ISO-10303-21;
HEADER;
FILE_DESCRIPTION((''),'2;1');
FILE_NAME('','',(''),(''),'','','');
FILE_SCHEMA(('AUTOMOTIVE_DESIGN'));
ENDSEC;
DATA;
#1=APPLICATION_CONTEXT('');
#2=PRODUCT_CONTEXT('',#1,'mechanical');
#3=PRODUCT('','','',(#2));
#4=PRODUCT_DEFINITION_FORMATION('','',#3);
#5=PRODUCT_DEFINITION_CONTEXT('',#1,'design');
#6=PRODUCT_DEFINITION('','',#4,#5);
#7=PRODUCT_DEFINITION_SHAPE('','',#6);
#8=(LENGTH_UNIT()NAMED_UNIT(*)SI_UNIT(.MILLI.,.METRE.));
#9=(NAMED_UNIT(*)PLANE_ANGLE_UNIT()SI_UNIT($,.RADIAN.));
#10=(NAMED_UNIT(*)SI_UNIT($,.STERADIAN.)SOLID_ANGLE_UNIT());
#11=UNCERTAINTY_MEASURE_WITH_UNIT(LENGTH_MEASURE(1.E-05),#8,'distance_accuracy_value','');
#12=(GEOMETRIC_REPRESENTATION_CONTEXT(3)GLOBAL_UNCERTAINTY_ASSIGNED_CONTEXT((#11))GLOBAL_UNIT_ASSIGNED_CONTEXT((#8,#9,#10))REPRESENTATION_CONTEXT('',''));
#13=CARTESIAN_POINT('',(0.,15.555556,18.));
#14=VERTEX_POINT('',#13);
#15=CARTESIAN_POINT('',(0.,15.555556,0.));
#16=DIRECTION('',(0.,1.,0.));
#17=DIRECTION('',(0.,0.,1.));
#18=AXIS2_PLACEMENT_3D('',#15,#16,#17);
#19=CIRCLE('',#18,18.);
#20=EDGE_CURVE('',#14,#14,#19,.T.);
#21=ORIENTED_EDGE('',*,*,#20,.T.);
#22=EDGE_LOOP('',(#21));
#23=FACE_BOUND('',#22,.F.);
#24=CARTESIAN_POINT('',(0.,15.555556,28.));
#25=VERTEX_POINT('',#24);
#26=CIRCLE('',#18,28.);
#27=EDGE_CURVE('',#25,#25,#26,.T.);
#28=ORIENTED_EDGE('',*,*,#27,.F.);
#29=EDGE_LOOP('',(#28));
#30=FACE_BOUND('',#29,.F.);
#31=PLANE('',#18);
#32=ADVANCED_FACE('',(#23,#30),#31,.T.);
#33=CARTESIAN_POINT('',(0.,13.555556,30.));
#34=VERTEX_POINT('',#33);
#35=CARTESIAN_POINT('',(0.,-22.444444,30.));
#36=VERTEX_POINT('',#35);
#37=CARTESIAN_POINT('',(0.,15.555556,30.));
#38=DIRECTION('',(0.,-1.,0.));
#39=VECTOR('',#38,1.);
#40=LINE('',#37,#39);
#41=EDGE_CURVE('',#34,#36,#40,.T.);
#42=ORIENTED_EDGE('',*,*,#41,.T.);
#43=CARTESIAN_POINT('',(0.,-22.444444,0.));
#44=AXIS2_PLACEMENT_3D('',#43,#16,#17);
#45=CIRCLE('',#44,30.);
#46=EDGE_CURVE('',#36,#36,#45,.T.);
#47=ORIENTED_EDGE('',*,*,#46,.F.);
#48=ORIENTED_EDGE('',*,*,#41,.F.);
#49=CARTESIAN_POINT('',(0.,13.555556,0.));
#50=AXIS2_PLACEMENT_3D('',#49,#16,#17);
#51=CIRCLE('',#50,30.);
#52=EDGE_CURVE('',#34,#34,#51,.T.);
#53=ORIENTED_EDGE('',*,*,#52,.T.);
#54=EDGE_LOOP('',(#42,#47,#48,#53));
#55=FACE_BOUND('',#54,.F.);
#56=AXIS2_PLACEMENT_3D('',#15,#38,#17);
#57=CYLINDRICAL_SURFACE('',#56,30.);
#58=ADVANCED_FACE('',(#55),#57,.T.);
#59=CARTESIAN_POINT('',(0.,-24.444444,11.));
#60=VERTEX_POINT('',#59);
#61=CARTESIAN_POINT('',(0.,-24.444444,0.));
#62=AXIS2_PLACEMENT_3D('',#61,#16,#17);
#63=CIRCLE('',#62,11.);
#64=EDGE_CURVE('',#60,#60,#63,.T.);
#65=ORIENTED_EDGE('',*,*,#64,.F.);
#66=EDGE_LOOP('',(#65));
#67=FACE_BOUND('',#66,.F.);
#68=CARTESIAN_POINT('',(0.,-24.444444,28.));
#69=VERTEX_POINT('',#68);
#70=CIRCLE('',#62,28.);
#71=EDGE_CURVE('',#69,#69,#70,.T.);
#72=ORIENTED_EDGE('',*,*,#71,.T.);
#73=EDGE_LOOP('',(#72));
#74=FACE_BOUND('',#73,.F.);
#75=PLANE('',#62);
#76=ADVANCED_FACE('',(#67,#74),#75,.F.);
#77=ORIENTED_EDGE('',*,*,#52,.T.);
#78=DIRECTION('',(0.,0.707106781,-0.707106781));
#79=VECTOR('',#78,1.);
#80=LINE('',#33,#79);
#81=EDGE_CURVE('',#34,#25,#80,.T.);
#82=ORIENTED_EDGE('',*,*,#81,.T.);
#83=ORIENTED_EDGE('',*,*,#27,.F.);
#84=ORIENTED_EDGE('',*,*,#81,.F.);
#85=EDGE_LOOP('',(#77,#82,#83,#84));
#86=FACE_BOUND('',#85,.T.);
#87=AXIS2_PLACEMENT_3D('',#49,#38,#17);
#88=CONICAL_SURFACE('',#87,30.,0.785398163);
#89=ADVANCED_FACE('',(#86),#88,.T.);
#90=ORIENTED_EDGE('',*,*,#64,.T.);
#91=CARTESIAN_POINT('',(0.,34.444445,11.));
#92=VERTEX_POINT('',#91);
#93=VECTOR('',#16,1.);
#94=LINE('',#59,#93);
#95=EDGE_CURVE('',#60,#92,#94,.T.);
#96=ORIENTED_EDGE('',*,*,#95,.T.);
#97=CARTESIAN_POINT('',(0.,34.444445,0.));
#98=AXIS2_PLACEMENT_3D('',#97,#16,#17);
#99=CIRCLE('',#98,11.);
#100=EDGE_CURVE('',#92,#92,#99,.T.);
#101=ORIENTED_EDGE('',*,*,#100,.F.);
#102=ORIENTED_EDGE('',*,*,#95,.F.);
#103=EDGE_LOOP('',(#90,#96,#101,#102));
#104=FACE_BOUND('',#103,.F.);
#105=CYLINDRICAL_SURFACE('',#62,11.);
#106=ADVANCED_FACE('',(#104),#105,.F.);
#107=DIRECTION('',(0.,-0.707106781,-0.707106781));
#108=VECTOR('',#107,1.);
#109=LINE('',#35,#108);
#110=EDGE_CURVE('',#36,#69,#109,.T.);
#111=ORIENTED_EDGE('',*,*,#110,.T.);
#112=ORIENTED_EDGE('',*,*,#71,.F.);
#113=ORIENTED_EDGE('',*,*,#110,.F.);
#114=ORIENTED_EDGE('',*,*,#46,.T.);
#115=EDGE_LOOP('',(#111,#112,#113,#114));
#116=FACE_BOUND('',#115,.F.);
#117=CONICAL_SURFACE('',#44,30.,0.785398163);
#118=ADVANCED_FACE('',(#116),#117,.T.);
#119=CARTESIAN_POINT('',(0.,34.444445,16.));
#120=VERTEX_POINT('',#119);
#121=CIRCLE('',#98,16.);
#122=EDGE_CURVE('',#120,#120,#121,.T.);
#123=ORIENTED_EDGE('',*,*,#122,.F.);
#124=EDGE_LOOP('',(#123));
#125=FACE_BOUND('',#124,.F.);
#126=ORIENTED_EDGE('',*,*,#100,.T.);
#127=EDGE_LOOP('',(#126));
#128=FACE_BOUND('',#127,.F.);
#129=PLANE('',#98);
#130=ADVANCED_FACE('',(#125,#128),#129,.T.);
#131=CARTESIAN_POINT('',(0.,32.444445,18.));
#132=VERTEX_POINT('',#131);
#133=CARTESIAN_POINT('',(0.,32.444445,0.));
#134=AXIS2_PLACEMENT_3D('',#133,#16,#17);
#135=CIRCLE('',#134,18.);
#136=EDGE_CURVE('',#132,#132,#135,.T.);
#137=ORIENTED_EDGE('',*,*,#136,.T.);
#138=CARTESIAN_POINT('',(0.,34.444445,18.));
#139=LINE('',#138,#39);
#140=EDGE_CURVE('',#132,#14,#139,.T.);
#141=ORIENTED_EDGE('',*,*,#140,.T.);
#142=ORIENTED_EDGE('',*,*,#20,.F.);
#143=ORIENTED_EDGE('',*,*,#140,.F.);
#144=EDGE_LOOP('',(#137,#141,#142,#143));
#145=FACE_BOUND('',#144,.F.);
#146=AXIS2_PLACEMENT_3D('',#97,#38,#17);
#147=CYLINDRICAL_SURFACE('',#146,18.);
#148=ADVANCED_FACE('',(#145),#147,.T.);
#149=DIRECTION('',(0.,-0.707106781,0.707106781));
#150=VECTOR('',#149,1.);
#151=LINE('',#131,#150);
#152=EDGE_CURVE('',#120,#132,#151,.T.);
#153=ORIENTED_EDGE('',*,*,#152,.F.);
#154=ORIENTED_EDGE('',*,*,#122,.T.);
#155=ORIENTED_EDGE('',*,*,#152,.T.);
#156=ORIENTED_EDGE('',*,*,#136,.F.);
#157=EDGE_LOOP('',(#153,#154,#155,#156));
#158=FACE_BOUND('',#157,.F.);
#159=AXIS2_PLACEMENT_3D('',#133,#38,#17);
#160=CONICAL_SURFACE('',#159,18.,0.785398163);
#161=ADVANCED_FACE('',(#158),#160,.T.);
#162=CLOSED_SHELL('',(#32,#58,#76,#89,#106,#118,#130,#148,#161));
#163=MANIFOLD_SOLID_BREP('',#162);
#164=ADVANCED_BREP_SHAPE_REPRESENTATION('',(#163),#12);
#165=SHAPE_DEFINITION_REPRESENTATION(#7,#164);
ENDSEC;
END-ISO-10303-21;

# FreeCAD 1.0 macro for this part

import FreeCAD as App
import Part
import Sketcher
Q = App.Units.Quantity


def edges_at(feature, points):
    """Names of the edges that pass closest to the given points."""
    edges = feature.Shape.Edges
    near = lambda p: min(range(len(edges)), key=lambda i: edges[i].distToShape(Part.Vertex(*p))[0])
    return sorted({f"Edge{near(p) + 1}" for p in points})

doc = App.newDocument("Part")
body = doc.addObject("PartDesign::Body", "Body")

# Sketch on YZ plane
sketch1 = body.newObject("Sketcher::SketchObject", "Sketch")
sketch1.AttachmentSupport = (doc.getObject("YZ_Plane"), [""])
sketch1.MapMode = "FlatFace"
sketch1.addGeometry(Part.LineSegment(App.Vector(15.555556, 30, 0), App.Vector(-24.444444, 30, 0)), False)
sketch1.addGeometry(Part.LineSegment(App.Vector(-24.444444, 30, 0), App.Vector(-24.444444, 11, 0)), False)
sketch1.addGeometry(Part.LineSegment(App.Vector(-24.444444, 11, 0), App.Vector(34.444445, 11, 0)), False)
sketch1.addGeometry(Part.LineSegment(App.Vector(34.444445, 11, 0), App.Vector(34.444445, 18, 0)), False)
sketch1.addGeometry(Part.LineSegment(App.Vector(34.444445, 18, 0), App.Vector(15.555556, 18, 0)), False)
sketch1.addGeometry(Part.LineSegment(App.Vector(15.555556, 18, 0), App.Vector(15.555556, 30, 0)), False)
sketch1.addConstraint(Sketcher.Constraint("Coincident", 0, 2, 1, 1))
sketch1.addConstraint(Sketcher.Constraint("Coincident", 1, 2, 2, 1))
sketch1.addConstraint(Sketcher.Constraint("Coincident", 2, 2, 3, 1))
sketch1.addConstraint(Sketcher.Constraint("Coincident", 3, 2, 4, 1))
sketch1.addConstraint(Sketcher.Constraint("Coincident", 4, 2, 5, 1))
sketch1.addConstraint(Sketcher.Constraint("Coincident", 5, 2, 0, 1))
sketch1.addConstraint(Sketcher.Constraint("Horizontal", 0))
sketch1.addConstraint(Sketcher.Constraint("Vertical", 1))
sketch1.addConstraint(Sketcher.Constraint("Horizontal", 2))
sketch1.addConstraint(Sketcher.Constraint("Vertical", 3))
sketch1.addConstraint(Sketcher.Constraint("Horizontal", 4))
sketch1.addConstraint(Sketcher.Constraint("Vertical", 5))
sketch1.addConstraint(Sketcher.Constraint("DistanceX", 0, 2, 0, 1, Q("40 mm")))
sketch1.addConstraint(Sketcher.Constraint("DistanceY", 1, 2, 1, 1, Q("19 mm")))
sketch1.addConstraint(Sketcher.Constraint("DistanceY", 3, 1, 3, 2, Q("7 mm")))
sketch1.addConstraint(Sketcher.Constraint("DistanceY", -1, 1, 0, 2, Q("30 mm")))
sketch1.addConstraint(Sketcher.Constraint("DistanceX", 2, 1, 2, 2, Q("58.888889 mm")))
sketch1.addConstraint(Sketcher.Constraint("DistanceX", 0, 2, -1, 1, Q("24.444444 mm")))
revolution = body.newObject("PartDesign::Revolution", "Revolution")
revolution.Profile = sketch1
revolution.ReferenceAxis = (sketch1, ["H_Axis"])
revolution.Angle = 360
doc.recompute()

chamfer = body.newObject("PartDesign::Chamfer", "Chamfer")
chamfer.Base = (revolution, edges_at(revolution, [(0, 34.444, -18), (0, 15.556, -30), (0, -24.444, -30)]))
chamfer.Size = 2

doc.recompute()
